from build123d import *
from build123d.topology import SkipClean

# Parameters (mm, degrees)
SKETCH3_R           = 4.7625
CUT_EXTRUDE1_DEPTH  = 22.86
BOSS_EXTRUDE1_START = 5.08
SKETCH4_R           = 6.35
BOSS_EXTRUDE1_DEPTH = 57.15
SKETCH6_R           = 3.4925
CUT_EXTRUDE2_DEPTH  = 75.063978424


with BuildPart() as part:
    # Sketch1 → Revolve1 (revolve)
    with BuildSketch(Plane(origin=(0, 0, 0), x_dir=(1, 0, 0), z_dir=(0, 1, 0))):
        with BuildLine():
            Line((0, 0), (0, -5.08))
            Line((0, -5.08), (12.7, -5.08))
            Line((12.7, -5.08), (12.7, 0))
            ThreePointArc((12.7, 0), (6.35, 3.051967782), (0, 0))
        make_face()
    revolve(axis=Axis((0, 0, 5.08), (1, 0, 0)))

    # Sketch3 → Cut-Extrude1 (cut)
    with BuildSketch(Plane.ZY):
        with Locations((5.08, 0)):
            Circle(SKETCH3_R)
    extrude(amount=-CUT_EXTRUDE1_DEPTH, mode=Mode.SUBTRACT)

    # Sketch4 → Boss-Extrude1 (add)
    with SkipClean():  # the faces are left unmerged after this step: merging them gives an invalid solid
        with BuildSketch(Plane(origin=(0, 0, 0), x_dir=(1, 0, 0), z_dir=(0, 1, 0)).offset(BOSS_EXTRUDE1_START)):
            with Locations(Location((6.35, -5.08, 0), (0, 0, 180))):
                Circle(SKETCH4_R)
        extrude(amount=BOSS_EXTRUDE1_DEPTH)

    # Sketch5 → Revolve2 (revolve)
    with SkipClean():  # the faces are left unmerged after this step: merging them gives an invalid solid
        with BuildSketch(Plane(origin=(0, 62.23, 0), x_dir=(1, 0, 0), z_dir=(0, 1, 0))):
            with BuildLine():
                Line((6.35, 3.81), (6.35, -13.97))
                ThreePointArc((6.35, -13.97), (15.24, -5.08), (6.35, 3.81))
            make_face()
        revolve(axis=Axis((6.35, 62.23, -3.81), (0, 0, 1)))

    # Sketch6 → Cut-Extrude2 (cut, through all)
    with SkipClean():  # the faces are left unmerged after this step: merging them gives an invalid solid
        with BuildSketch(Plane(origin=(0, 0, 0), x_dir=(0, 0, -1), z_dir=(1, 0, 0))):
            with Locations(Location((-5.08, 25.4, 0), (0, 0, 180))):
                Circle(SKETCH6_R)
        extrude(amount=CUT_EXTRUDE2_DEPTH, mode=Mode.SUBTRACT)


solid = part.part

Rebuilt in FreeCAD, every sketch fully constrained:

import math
import FreeCAD as App
import Part
import Sketcher
from FreeCAD import Vector
Q = App.Units.Quantity

doc = App.newDocument("Part")
body = doc.addObject("PartDesign::Body", "Body")

# Sketch on XZ plane
sketch1 = doc.addObject("Sketcher::SketchObject", "Sketch")
body.addObject(sketch1)
sketch1.AttachmentSupport = (doc.XZ_Plane, [""])
sketch1.MapMode = "FlatFace"
sketch1.addGeometry(Part.LineSegment(Vector(0, 0, 0), Vector(0, 5.08, 0)), False)
sketch1.addGeometry(Part.LineSegment(Vector(0, 5.08, 0), Vector(12.7, 5.08, 0)), False)
sketch1.addGeometry(Part.LineSegment(Vector(12.7, 5.08, 0), Vector(12.7, 0, 0)), False)
sketch1.addGeometry(Part.ArcOfCircle(Part.Circle(Vector(6.35, 5.08, 0), Vector(0, 0, 1), 8.131968), math.radians(-141.340192), math.radians(-38.659808)), False)
sketch1.addGeometry(Part.LineSegment(Vector(0, 5.08, 0), Vector(12.7, 5.08, 0)), True)  # axis
sketch1.addConstraint(Sketcher.Constraint("Coincident", 0, 2, 1, 1))
sketch1.addConstraint(Sketcher.Constraint("Coincident", 1, 2, 2, 1))
sketch1.addConstraint(Sketcher.Constraint("Coincident", 2, 2, 3, 2))
sketch1.addConstraint(Sketcher.Constraint("Coincident", 3, 1, 0, 1))
sketch1.addConstraint(Sketcher.Constraint("Vertical", 0))
sketch1.addConstraint(Sketcher.Constraint("Horizontal", 1))
sketch1.addConstraint(Sketcher.Constraint("Vertical", 2))
sketch1.addConstraint(Sketcher.Constraint("Horizontal", 4))
sketch1.addConstraint(Sketcher.Constraint("Coincident", 3, 1, -1, 1))
sketch1.addConstraint(Sketcher.Constraint("Coincident", 4, 1, 0, 2))
sketch1.addConstraint(Sketcher.Constraint("PointOnObject", 2, 2, -1))
sketch1.addConstraint(Sketcher.Constraint("Horizontal", 3, 3, 0, 2))
sketch1.addConstraint(Sketcher.Constraint("Vertical", 2, 2, 4, 2))
sketch1.addConstraint(Sketcher.Constraint("DistanceX", 1, 1, 1, 2, Q("0.5 in")))
sketch1.addConstraint(Sketcher.Constraint("DistanceY", 0, 1, 0, 2, Q("0.2 in")))
revolution = doc.addObject("PartDesign::Revolution", "Revolution")
body.addObject(revolution)
revolution.Profile = sketch1
revolution.ReferenceAxis = (sketch1, ["Axis0"])
revolution.Angle = 360

# Sketch on YZ plane
sketch2 = doc.addObject("Sketcher::SketchObject", "Sketch001")
body.addObject(sketch2)
sketch2.AttachmentSupport = (doc.YZ_Plane, [""])
sketch2.MapMode = "FlatFace"
sketch2.addGeometry(Part.Circle(Vector(0, 5.08, 0), Vector(0, 0, 1), 4.7625), False)
sketch2.addConstraint(Sketcher.Constraint("PointOnObject", 0, 3, -2))
sketch2.addConstraint(Sketcher.Constraint("Diameter", 0, Q("0.375 in")))
sketch2.addConstraint(Sketcher.Constraint("DistanceY", -1, 1, 0, 3, Q("0.2 in")))
pocket1 = doc.addObject("PartDesign::Pocket", "Pocket")
body.addObject(pocket1)
pocket1.Profile = sketch2
pocket1.Length = Q("0.9 in")
pocket1.Reversed = True

# Sketch on XZ plane
sketch3 = doc.addObject("Sketcher::SketchObject", "Sketch002")
body.addObject(sketch3)
sketch3.AttachmentSupport = (doc.XZ_Plane, [""])
sketch3.MapMode = "FlatFace"
sketch3.AttachmentOffset = App.Placement(Vector(0, 0, -0.2 * 25.4), App.Rotation())
sketch3.addGeometry(Part.Circle(Vector(6.35, 5.08, 0), Vector(0, 0, 1), 6.35), False)
sketch3.addConstraint(Sketcher.Constraint("Diameter", 0, Q("0.5 in")))
sketch3.addConstraint(Sketcher.Constraint("DistanceY", -1, 1, 0, 3, Q("0.2 in")))
sketch3.addConstraint(Sketcher.Constraint("DistanceX", -1, 1, 0, 3, Q("0.25 in")))
pad1 = doc.addObject("PartDesign::Pad", "Pad")
body.addObject(pad1)
pad1.Profile = sketch3
pad1.Length = Q("2.25 in")
pad1.Reversed = True

# Sketch on XZ plane
sketch4 = doc.addObject("Sketcher::SketchObject", "Sketch003")
body.addObject(sketch4)
sketch4.AttachmentSupport = (doc.XZ_Plane, [""])
sketch4.MapMode = "FlatFace"
sketch4.AttachmentOffset = App.Placement(Vector(0, 0, -2.45 * 25.4), App.Rotation())
sketch4.addGeometry(Part.LineSegment(Vector(6.35, -3.81, 0), Vector(6.35, 13.97, 0)), False)
sketch4.addGeometry(Part.ArcOfCircle(Part.Circle(Vector(6.35, 5.08, 0), Vector(0, 0, 1), 8.89), math.radians(-90), math.radians(90)), False)
sketch4.addGeometry(Part.LineSegment(Vector(6.35, -3.81, 0), Vector(6.35, 13.97, 0)), True)  # axis
sketch4.addConstraint(Sketcher.Constraint("Coincident", 0, 1, 1, 1))
sketch4.addConstraint(Sketcher.Constraint("Coincident", 1, 2, 0, 2))
sketch4.addConstraint(Sketcher.Constraint("Vertical", 0))
sketch4.addConstraint(Sketcher.Constraint("Vertical", 2))
sketch4.addConstraint(Sketcher.Constraint("Coincident", 2, 1, 0, 1))
sketch4.addConstraint(Sketcher.Constraint("Vertical", 1, 3, 0, 1))
sketch4.addConstraint(Sketcher.Constraint("Equal", 0, 2))
sketch4.addConstraint(Sketcher.Constraint("Radius", 1, Q("0.35 in")))
sketch4.addConstraint(Sketcher.Constraint("DistanceY", -1, 1, 1, 3, Q("0.2 in")))
sketch4.addConstraint(Sketcher.Constraint("DistanceX", -1, 1, 1, 3, Q("0.25 in")))
revolution2 = doc.addObject("PartDesign::Revolution", "Revolution001")
body.addObject(revolution2)
revolution2.Profile = sketch4
revolution2.ReferenceAxis = (sketch4, ["Axis0"])
revolution2.Angle = 360

# Sketch on YZ plane
sketch5 = doc.addObject("Sketcher::SketchObject", "Sketch004")
body.addObject(sketch5)
sketch5.AttachmentSupport = (doc.YZ_Plane, [""])
sketch5.MapMode = "FlatFace"
sketch5.addGeometry(Part.Circle(Vector(25.4, 5.08, 0), Vector(0, 0, 1), 3.4925), False)
sketch5.addConstraint(Sketcher.Constraint("Diameter", 0, Q("0.275 in")))
sketch5.addConstraint(Sketcher.Constraint("DistanceX", -1, 1, 0, 3, Q("1 in")))
sketch5.addConstraint(Sketcher.Constraint("DistanceY", -1, 1, 0, 3, Q("0.2 in")))
pocket2 = doc.addObject("PartDesign::Pocket", "Pocket001")
body.addObject(pocket2)
pocket2.Profile = sketch5
pocket2.Type = "ThroughAll"
pocket2.Reversed = True

doc.recompute()
